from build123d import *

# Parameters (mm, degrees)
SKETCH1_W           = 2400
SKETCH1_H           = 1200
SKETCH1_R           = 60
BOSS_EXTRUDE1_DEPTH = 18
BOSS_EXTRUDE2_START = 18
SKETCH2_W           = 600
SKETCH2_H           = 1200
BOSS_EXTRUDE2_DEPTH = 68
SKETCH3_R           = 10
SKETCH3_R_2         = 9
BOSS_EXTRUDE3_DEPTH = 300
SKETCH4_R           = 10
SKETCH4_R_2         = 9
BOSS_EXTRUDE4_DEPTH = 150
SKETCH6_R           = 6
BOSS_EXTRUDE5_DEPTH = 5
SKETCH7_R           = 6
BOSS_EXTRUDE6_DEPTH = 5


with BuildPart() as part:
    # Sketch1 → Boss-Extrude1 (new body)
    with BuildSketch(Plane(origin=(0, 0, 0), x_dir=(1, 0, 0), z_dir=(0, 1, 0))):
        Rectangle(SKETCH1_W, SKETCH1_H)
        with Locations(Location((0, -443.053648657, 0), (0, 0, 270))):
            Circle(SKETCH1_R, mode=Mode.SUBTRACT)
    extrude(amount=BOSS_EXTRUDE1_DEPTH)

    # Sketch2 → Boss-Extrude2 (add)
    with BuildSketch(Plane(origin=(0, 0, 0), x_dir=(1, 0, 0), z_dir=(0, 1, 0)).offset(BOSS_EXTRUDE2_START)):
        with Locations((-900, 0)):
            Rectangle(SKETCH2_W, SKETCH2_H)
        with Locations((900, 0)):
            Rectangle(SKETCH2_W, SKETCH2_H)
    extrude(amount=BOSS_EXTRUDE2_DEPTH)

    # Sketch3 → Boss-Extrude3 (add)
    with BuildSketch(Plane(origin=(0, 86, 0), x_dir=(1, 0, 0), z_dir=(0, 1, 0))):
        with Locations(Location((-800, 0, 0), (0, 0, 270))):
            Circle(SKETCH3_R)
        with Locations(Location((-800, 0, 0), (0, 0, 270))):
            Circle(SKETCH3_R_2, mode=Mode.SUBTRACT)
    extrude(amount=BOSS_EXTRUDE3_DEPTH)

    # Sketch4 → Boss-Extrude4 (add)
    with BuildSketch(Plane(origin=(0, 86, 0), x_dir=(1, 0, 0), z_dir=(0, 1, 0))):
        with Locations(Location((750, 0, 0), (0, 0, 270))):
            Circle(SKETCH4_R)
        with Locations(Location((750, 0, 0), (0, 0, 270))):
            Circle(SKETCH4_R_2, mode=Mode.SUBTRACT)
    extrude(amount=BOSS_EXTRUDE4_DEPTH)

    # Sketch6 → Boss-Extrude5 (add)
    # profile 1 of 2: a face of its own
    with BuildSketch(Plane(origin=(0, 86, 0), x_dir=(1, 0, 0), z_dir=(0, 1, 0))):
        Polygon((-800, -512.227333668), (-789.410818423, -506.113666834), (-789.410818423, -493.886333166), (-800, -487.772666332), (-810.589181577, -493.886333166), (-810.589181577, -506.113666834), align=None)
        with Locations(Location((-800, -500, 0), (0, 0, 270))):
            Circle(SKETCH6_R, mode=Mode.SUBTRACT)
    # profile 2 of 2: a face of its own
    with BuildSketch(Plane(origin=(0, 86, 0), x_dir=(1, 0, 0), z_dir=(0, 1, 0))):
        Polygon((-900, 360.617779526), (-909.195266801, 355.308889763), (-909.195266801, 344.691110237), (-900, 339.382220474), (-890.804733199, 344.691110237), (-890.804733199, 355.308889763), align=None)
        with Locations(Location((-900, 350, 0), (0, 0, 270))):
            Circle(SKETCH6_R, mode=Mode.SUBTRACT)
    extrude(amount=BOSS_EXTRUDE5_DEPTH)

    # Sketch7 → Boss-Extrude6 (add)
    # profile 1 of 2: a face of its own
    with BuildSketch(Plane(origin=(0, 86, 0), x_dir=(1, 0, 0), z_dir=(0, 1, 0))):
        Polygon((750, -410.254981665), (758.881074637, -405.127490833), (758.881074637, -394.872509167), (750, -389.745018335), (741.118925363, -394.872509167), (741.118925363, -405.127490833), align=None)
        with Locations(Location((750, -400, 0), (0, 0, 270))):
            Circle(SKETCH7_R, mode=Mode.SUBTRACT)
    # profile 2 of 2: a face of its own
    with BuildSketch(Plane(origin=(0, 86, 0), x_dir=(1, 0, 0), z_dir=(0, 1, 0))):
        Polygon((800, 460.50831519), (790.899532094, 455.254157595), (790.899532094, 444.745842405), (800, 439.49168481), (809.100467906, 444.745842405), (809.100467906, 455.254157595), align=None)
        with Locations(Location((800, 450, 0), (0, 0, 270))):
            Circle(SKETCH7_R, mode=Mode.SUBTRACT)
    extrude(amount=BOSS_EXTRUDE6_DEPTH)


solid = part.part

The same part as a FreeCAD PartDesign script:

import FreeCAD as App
import Part
import Sketcher
from FreeCAD import Vector
Q = App.Units.Quantity

doc = App.newDocument("Part")
body = doc.addObject("PartDesign::Body", "Body")

# Sketch on XZ plane
sketch1 = doc.addObject("Sketcher::SketchObject", "Sketch")
body.addObject(sketch1)
sketch1.AttachmentSupport = (doc.XZ_Plane, [""])
sketch1.MapMode = "FlatFace"
sketch1.addGeometry(Part.LineSegment(Vector(-1200, -600, 0), Vector(-1200, 600, 0)), False)
sketch1.addGeometry(Part.LineSegment(Vector(-1200, 600, 0), Vector(1200, 600, 0)), False)
sketch1.addGeometry(Part.LineSegment(Vector(1200, 600, 0), Vector(1200, -600, 0)), False)
sketch1.addGeometry(Part.LineSegment(Vector(1200, -600, 0), Vector(-1200, -600, 0)), False)
sketch1.addGeometry(Part.Circle(Vector(0, 443, 0), Vector(0, 0, 1), 60), False)
sketch1.addConstraint(Sketcher.Constraint("Coincident", 0, 2, 1, 1))
sketch1.addConstraint(Sketcher.Constraint("Coincident", 1, 2, 2, 1))
sketch1.addConstraint(Sketcher.Constraint("Coincident", 2, 2, 3, 1))
sketch1.addConstraint(Sketcher.Constraint("Coincident", 3, 2, 0, 1))
sketch1.addConstraint(Sketcher.Constraint("Vertical", 0))
sketch1.addConstraint(Sketcher.Constraint("Horizontal", 1))
sketch1.addConstraint(Sketcher.Constraint("Vertical", 2))
sketch1.addConstraint(Sketcher.Constraint("Horizontal", 3))
sketch1.addConstraint(Sketcher.Constraint("Symmetric", 0, 2, 2, 2, -1, 1))
sketch1.addConstraint(Sketcher.Constraint("PointOnObject", 4, 3, -2))
sketch1.addConstraint(Sketcher.Constraint("Diameter", 4, 120.0))
sketch1.addConstraint(Sketcher.Constraint("DistanceX", 1, 1, 1, 2, 2400.0))
sketch1.addConstraint(Sketcher.Constraint("DistanceY", 0, 1, 0, 2, 1200.0))
sketch1.addConstraint(Sketcher.Constraint("DistanceY", -1, 1, 4, 3, 443.053649))
pad1 = doc.addObject("PartDesign::Pad", "Pad")
body.addObject(pad1)
pad1.Profile = sketch1
pad1.Length = 18
pad1.Reversed = True

# Sketch on XZ plane
sketch2 = doc.addObject("Sketcher::SketchObject", "Sketch001")
body.addObject(sketch2)
sketch2.AttachmentSupport = (doc.XZ_Plane, [""])
sketch2.MapMode = "FlatFace"
sketch2.AttachmentOffset = App.Placement(Vector(0, 0, -18), App.Rotation())
sketch2.addGeometry(Part.LineSegment(Vector(-1200, -600, 0), Vector(-1200, 600, 0)), False)
sketch2.addGeometry(Part.LineSegment(Vector(-1200, 600, 0), Vector(-600, 600, 0)), False)
sketch2.addGeometry(Part.LineSegment(Vector(-600, 600, 0), Vector(-600, -600, 0)), False)
sketch2.addGeometry(Part.LineSegment(Vector(-600, -600, 0), Vector(-1200, -600, 0)), False)
sketch2.addGeometry(Part.LineSegment(Vector(600, -600, 0), Vector(600, 600, 0)), False)
sketch2.addGeometry(Part.LineSegment(Vector(600, 600, 0), Vector(1200, 600, 0)), False)
sketch2.addGeometry(Part.LineSegment(Vector(1200, 600, 0), Vector(1200, -600, 0)), False)
sketch2.addGeometry(Part.LineSegment(Vector(1200, -600, 0), Vector(600, -600, 0)), False)
sketch2.addConstraint(Sketcher.Constraint("Coincident", 0, 2, 1, 1))
sketch2.addConstraint(Sketcher.Constraint("Coincident", 1, 2, 2, 1))
sketch2.addConstraint(Sketcher.Constraint("Coincident", 2, 2, 3, 1))
sketch2.addConstraint(Sketcher.Constraint("Coincident", 3, 2, 0, 1))
sketch2.addConstraint(Sketcher.Constraint("Coincident", 4, 2, 5, 1))
sketch2.addConstraint(Sketcher.Constraint("Coincident", 5, 2, 6, 1))
sketch2.addConstraint(Sketcher.Constraint("Coincident", 6, 2, 7, 1))
sketch2.addConstraint(Sketcher.Constraint("Coincident", 7, 2, 4, 1))
sketch2.addConstraint(Sketcher.Constraint("Vertical", 0))
sketch2.addConstraint(Sketcher.Constraint("Horizontal", 1))
sketch2.addConstraint(Sketcher.Constraint("Vertical", 2))
sketch2.addConstraint(Sketcher.Constraint("Horizontal", 3))
sketch2.addConstraint(Sketcher.Constraint("Vertical", 4))
sketch2.addConstraint(Sketcher.Constraint("Horizontal", 5))
sketch2.addConstraint(Sketcher.Constraint("Vertical", 6))
sketch2.addConstraint(Sketcher.Constraint("Horizontal", 7))
sketch2.addConstraint(Sketcher.Constraint("Symmetric", 2, 2, 4, 2, -1, 1))
sketch2.addConstraint(Sketcher.Constraint("Symmetric", 0, 2, 6, 2, -1, 1))
sketch2.addConstraint(Sketcher.Constraint("Horizontal", 1, 2, 4, 2))
sketch2.addConstraint(Sketcher.Constraint("DistanceX", 1, 1, 1, 2, 600.0))
sketch2.addConstraint(Sketcher.Constraint("DistanceY", 0, 1, 0, 2, 1200.0))
sketch2.addConstraint(Sketcher.Constraint("DistanceX", 0, 2, -1, 1, 1200.0))
pad2 = doc.addObject("PartDesign::Pad", "Pad001")
body.addObject(pad2)
pad2.Profile = sketch2
pad2.Length = 68
pad2.Reversed = True

# Sketch on XZ plane
sketch3 = doc.addObject("Sketcher::SketchObject", "Sketch002")
body.addObject(sketch3)
sketch3.AttachmentSupport = (doc.XZ_Plane, [""])
sketch3.MapMode = "FlatFace"
sketch3.AttachmentOffset = App.Placement(Vector(0, 0, -86), App.Rotation())
sketch3.addGeometry(Part.Circle(Vector(-800, 0, 0), Vector(0, 0, 1), 10), False)
sketch3.addGeometry(Part.Circle(Vector(-800, 0, 0), Vector(0, 0, 1), 9), False)
sketch3.addConstraint(Sketcher.Constraint("Coincident", 1, 3, 0, 3))
sketch3.addConstraint(Sketcher.Constraint("PointOnObject", 0, 3, -1))
sketch3.addConstraint(Sketcher.Constraint("Diameter", 0, 20.0))
sketch3.addConstraint(Sketcher.Constraint("Diameter", 1, 18.0))
sketch3.addConstraint(Sketcher.Constraint("DistanceX", 0, 3, -1, 1, 800.0))
pad3 = doc.addObject("PartDesign::Pad", "Pad002")
body.addObject(pad3)
pad3.Profile = sketch3
pad3.Length = 300
pad3.Reversed = True

# Sketch on XZ plane
sketch4 = doc.addObject("Sketcher::SketchObject", "Sketch003")
body.addObject(sketch4)
sketch4.AttachmentSupport = (doc.XZ_Plane, [""])
sketch4.MapMode = "FlatFace"
sketch4.AttachmentOffset = App.Placement(Vector(0, 0, -86), App.Rotation())
sketch4.addGeometry(Part.Circle(Vector(750, 0, 0), Vector(0, 0, 1), 10), False)
sketch4.addGeometry(Part.Circle(Vector(750, 0, 0), Vector(0, 0, 1), 9), False)
sketch4.addConstraint(Sketcher.Constraint("Coincident", 1, 3, 0, 3))
sketch4.addConstraint(Sketcher.Constraint("PointOnObject", 0, 3, -1))
sketch4.addConstraint(Sketcher.Constraint("Diameter", 0, 20.0))
sketch4.addConstraint(Sketcher.Constraint("Diameter", 1, 18.0))
sketch4.addConstraint(Sketcher.Constraint("DistanceX", -1, 1, 0, 3, 750.0))
pad4 = doc.addObject("PartDesign::Pad", "Pad003")
body.addObject(pad4)
pad4.Profile = sketch4
pad4.Length = 150
pad4.Reversed = True

# Sketch on XZ plane
sketch5 = doc.addObject("Sketcher::SketchObject", "Sketch004")
body.addObject(sketch5)
sketch5.AttachmentSupport = (doc.XZ_Plane, [""])
sketch5.MapMode = "FlatFace"
sketch5.AttachmentOffset = App.Placement(Vector(0, 0, -86), App.Rotation())
sketch5.addGeometry(Part.LineSegment(Vector(-800, 512, 0), Vector(-789, 506, 0)), False)
sketch5.addGeometry(Part.LineSegment(Vector(-789, 506, 0), Vector(-789, 494, 0)), False)
sketch5.addGeometry(Part.LineSegment(Vector(-789, 494, 0), Vector(-800, 488, 0)), False)
sketch5.addGeometry(Part.LineSegment(Vector(-800, 488, 0), Vector(-811, 494, 0)), False)
sketch5.addGeometry(Part.LineSegment(Vector(-811, 494, 0), Vector(-811, 506, 0)), False)
sketch5.addGeometry(Part.LineSegment(Vector(-811, 506, 0), Vector(-800, 512, 0)), False)
sketch5.addGeometry(Part.Circle(Vector(-800, 500, 0), Vector(0, 0, 1), 6), False)
sketch5.addGeometry(Part.LineSegment(Vector(-900, -361, 0), Vector(-909, -355, 0)), False)
sketch5.addGeometry(Part.LineSegment(Vector(-909, -355, 0), Vector(-909, -345, 0)), False)
sketch5.addGeometry(Part.LineSegment(Vector(-909, -345, 0), Vector(-900, -339, 0)), False)
sketch5.addGeometry(Part.LineSegment(Vector(-900, -339, 0), Vector(-891, -345, 0)), False)
sketch5.addGeometry(Part.LineSegment(Vector(-891, -345, 0), Vector(-891, -355, 0)), False)
sketch5.addGeometry(Part.LineSegment(Vector(-891, -355, 0), Vector(-900, -361, 0)), False)
sketch5.addGeometry(Part.Circle(Vector(-900, -350, 0), Vector(0, 0, 1), 6), False)
sketch5.addConstraint(Sketcher.Constraint("Coincident", 0, 2, 1, 1))
sketch5.addConstraint(Sketcher.Constraint("Coincident", 1, 2, 2, 1))
sketch5.addConstraint(Sketcher.Constraint("Coincident", 2, 2, 3, 1))
sketch5.addConstraint(Sketcher.Constraint("Coincident", 3, 2, 4, 1))
sketch5.addConstraint(Sketcher.Constraint("Coincident", 4, 2, 5, 1))
sketch5.addConstraint(Sketcher.Constraint("Coincident", 5, 2, 0, 1))
sketch5.addConstraint(Sketcher.Constraint("Coincident", 7, 2, 8, 1))
sketch5.addConstraint(Sketcher.Constraint("Coincident", 8, 2, 9, 1))
sketch5.addConstraint(Sketcher.Constraint("Coincident", 9, 2, 10, 1))
sketch5.addConstraint(Sketcher.Constraint("Coincident", 10, 2, 11, 1))
sketch5.addConstraint(Sketcher.Constraint("Coincident", 11, 2, 12, 1))
sketch5.addConstraint(Sketcher.Constraint("Coincident", 12, 2, 7, 1))
sketch5.addConstraint(Sketcher.Constraint("Vertical", 1))
sketch5.addConstraint(Sketcher.Constraint("Vertical", 4))
sketch5.addConstraint(Sketcher.Constraint("Vertical", 8))
sketch5.addConstraint(Sketcher.Constraint("Vertical", 11))
sketch5.addConstraint(Sketcher.Constraint("Equal", 6, 13))
sketch5.addConstraint(Sketcher.Constraint("Parallel", 0, 3))
sketch5.addConstraint(Sketcher.Constraint("Parallel", 2, 5))
sketch5.addConstraint(Sketcher.Constraint("Parallel", 3, 7))
sketch5.addConstraint(Sketcher.Constraint("Parallel", 5, 9))
sketch5.addConstraint(Sketcher.Constraint("Parallel", 7, 10))
sketch5.addConstraint(Sketcher.Constraint("Parallel", 9, 12))
sketch5.addConstraint(Sketcher.Constraint("Horizontal", 1, 2, 3, 2))
sketch5.addConstraint(Sketcher.Constraint("Horizontal", 0, 2, 4, 2))
sketch5.addConstraint(Sketcher.Constraint("Horizontal", 8, 2, 10, 2))
sketch5.addConstraint(Sketcher.Constraint("Horizontal", 7, 2, 11, 2))
sketch5.addConstraint(Sketcher.Constraint("Vertical", 6, 3, 2, 2))
sketch5.addConstraint(Sketcher.Constraint("Vertical", 2, 2, 5, 2))
sketch5.addConstraint(Sketcher.Constraint("Vertical", 13, 3, 9, 2))
sketch5.addConstraint(Sketcher.Constraint("Diameter", 6, 12.0))
sketch5.addConstraint(Sketcher.Constraint("Angle", 0, Q("-30 deg")))
sketch5.addConstraint(Sketcher.Constraint("DistanceX", 6, 3, -1, 1, 800.0))
sketch5.addConstraint(Sketcher.Constraint("DistanceY", -1, 1, 6, 3, 500.0))
sketch5.addConstraint(Sketcher.Constraint("DistanceX", 13, 3, -1, 1, 900.0))
sketch5.addConstraint(Sketcher.Constraint("DistanceY", 13, 3, -1, 1, 350.0))
sketch5.addConstraint(Sketcher.Constraint("DistanceY", 2, 2, 0, 2, 18.341001))
sketch5.addConstraint(Sketcher.Constraint("DistanceY", 8, 1, 8, 2, 10.61778))
sketch5.addConstraint(Sketcher.Constraint("Distance", 7, 10.61778))
sketch5.addConstraint(Sketcher.Constraint("DistanceY", 1, 2, 1, 1, 12.227334))
sketch5.addConstraint(Sketcher.Constraint("DistanceY", 7, 2, -1, 1, 355.30889))
sketch5.addConstraint(Sketcher.Constraint("DistanceY", -1, 1, 0, 2, 506.113667))
pad5 = doc.addObject("PartDesign::Pad", "Pad004")
body.addObject(pad5)
pad5.Profile = sketch5
pad5.Length = 5
pad5.Reversed = True

# Sketch on XZ plane
sketch6 = doc.addObject("Sketcher::SketchObject", "Sketch005")
body.addObject(sketch6)
sketch6.AttachmentSupport = (doc.XZ_Plane, [""])
sketch6.MapMode = "FlatFace"
sketch6.AttachmentOffset = App.Placement(Vector(0, 0, -86), App.Rotation())
sketch6.addGeometry(Part.LineSegment(Vector(750, 410, 0), Vector(759, 405, 0)), False)
sketch6.addGeometry(Part.LineSegment(Vector(759, 405, 0), Vector(759, 395, 0)), False)
sketch6.addGeometry(Part.LineSegment(Vector(759, 395, 0), Vector(750, 390, 0)), False)
sketch6.addGeometry(Part.LineSegment(Vector(750, 390, 0), Vector(741, 395, 0)), False)
sketch6.addGeometry(Part.LineSegment(Vector(741, 395, 0), Vector(741, 405, 0)), False)
sketch6.addGeometry(Part.LineSegment(Vector(741, 405, 0), Vector(750, 410, 0)), False)
sketch6.addGeometry(Part.Circle(Vector(750, 400, 0), Vector(0, 0, 1), 6), False)
sketch6.addGeometry(Part.LineSegment(Vector(800, -461, 0), Vector(791, -455, 0)), False)
sketch6.addGeometry(Part.LineSegment(Vector(791, -455, 0), Vector(791, -445, 0)), False)
sketch6.addGeometry(Part.LineSegment(Vector(791, -445, 0), Vector(800, -439, 0)), False)
sketch6.addGeometry(Part.LineSegment(Vector(800, -439, 0), Vector(809, -445, 0)), False)
sketch6.addGeometry(Part.LineSegment(Vector(809, -445, 0), Vector(809, -455, 0)), False)
sketch6.addGeometry(Part.LineSegment(Vector(809, -455, 0), Vector(800, -461, 0)), False)
sketch6.addGeometry(Part.Circle(Vector(800, -450, 0), Vector(0, 0, 1), 6), False)
sketch6.addConstraint(Sketcher.Constraint("Coincident", 0, 2, 1, 1))
sketch6.addConstraint(Sketcher.Constraint("Coincident", 1, 2, 2, 1))
sketch6.addConstraint(Sketcher.Constraint("Coincident", 2, 2, 3, 1))
sketch6.addConstraint(Sketcher.Constraint("Coincident", 3, 2, 4, 1))
sketch6.addConstraint(Sketcher.Constraint("Coincident", 4, 2, 5, 1))
sketch6.addConstraint(Sketcher.Constraint("Coincident", 5, 2, 0, 1))
sketch6.addConstraint(Sketcher.Constraint("Coincident", 7, 2, 8, 1))
sketch6.addConstraint(Sketcher.Constraint("Coincident", 8, 2, 9, 1))
sketch6.addConstraint(Sketcher.Constraint("Coincident", 9, 2, 10, 1))
sketch6.addConstraint(Sketcher.Constraint("Coincident", 10, 2, 11, 1))
sketch6.addConstraint(Sketcher.Constraint("Coincident", 11, 2, 12, 1))
sketch6.addConstraint(Sketcher.Constraint("Coincident", 12, 2, 7, 1))
sketch6.addConstraint(Sketcher.Constraint("Vertical", 1))
sketch6.addConstraint(Sketcher.Constraint("Vertical", 4))
sketch6.addConstraint(Sketcher.Constraint("Vertical", 8))
sketch6.addConstraint(Sketcher.Constraint("Vertical", 11))
sketch6.addConstraint(Sketcher.Constraint("Equal", 6, 13))
sketch6.addConstraint(Sketcher.Constraint("Parallel", 0, 3))
sketch6.addConstraint(Sketcher.Constraint("Parallel", 2, 5))
sketch6.addConstraint(Sketcher.Constraint("Parallel", 3, 7))
sketch6.addConstraint(Sketcher.Constraint("Parallel", 5, 9))
sketch6.addConstraint(Sketcher.Constraint("Parallel", 7, 10))
sketch6.addConstraint(Sketcher.Constraint("Parallel", 9, 12))
sketch6.addConstraint(Sketcher.Constraint("Horizontal", 1, 2, 3, 2))
sketch6.addConstraint(Sketcher.Constraint("Horizontal", 0, 2, 4, 2))
sketch6.addConstraint(Sketcher.Constraint("Horizontal", 8, 2, 10, 2))
sketch6.addConstraint(Sketcher.Constraint("Horizontal", 7, 2, 11, 2))
sketch6.addConstraint(Sketcher.Constraint("Vertical", 6, 3, 2, 2))
sketch6.addConstraint(Sketcher.Constraint("Vertical", 2, 2, 5, 2))
sketch6.addConstraint(Sketcher.Constraint("Vertical", 13, 3, 9, 2))
sketch6.addConstraint(Sketcher.Constraint("Diameter", 6, 12.0))
sketch6.addConstraint(Sketcher.Constraint("Angle", 0, Q("-30 deg")))
sketch6.addConstraint(Sketcher.Constraint("DistanceX", -1, 1, 6, 3, 750.0))
sketch6.addConstraint(Sketcher.Constraint("DistanceY", -1, 1, 6, 3, 400.0))
sketch6.addConstraint(Sketcher.Constraint("DistanceX", -1, 1, 13, 3, 800.0))
sketch6.addConstraint(Sketcher.Constraint("DistanceY", 13, 3, -1, 1, 450.0))
sketch6.addConstraint(Sketcher.Constraint("DistanceY", 1, 2, 1, 1, 10.254982))
sketch6.addConstraint(Sketcher.Constraint("Distance", 0, 10.254982))
sketch6.addConstraint(Sketcher.Constraint("DistanceY", 8, 1, 8, 2, 10.508315))
sketch6.addConstraint(Sketcher.Constraint("DistanceY", -1, 1, 0, 2, 405.127491))
sketch6.addConstraint(Sketcher.Constraint("DistanceY", 8, 2, 2, 2, 834.490861))
sketch6.addConstraint(Sketcher.Constraint("Distance", 7, 10.508315))
pad6 = doc.addObject("PartDesign::Pad", "Pad005")
body.addObject(pad6)
pad6.Profile = sketch6
pad6.Length = 5
pad6.Reversed = True

doc.recompute()
